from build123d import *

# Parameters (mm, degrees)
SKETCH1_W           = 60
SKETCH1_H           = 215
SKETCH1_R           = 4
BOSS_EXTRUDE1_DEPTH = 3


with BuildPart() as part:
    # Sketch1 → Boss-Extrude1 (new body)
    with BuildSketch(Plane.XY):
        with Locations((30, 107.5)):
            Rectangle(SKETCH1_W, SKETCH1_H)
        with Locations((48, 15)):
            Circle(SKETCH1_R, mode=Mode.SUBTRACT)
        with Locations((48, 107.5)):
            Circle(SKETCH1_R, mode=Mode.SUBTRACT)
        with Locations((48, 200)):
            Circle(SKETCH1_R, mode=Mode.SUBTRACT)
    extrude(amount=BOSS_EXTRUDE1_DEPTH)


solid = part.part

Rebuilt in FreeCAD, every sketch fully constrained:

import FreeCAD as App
import Part
import Sketcher

V = App.Vector

doc = App.newDocument("Part")
body = doc.addObject("PartDesign::Body", "Body")

sketch1 = body.newObject("Sketcher::SketchObject", "Sketch")
sketch1.AttachmentSupport = (doc.getObject("XY_Plane"), [""])
sketch1.MapMode = "FlatFace"
sketch1.addGeometry([
    Part.LineSegment(V(0, 215, 0), V(0, 0, 0)),
    Part.LineSegment(V(0, 0, 0), V(60, 0, 0)),
    Part.LineSegment(V(60, 0, 0), V(60, 215, 0)),
    Part.LineSegment(V(60, 215, 0), V(0, 215, 0)),
    Part.Circle(V(48, 15, 0), V(0, 0, 1), 4),
    Part.Circle(V(48, 107.5, 0), V(0, 0, 1), 4),
    Part.Circle(V(48, 200, 0), V(0, 0, 1), 4),
], False)
sketch1.addConstraint([
    Sketcher.Constraint("Coincident", 0, 2, 1, 1),
    Sketcher.Constraint("Coincident", 1, 2, 2, 1),
    Sketcher.Constraint("Coincident", 2, 2, 3, 1),
    Sketcher.Constraint("Coincident", 3, 2, 0, 1),
    Sketcher.Constraint("Vertical", 0),
    Sketcher.Constraint("Horizontal", 1),
    Sketcher.Constraint("Vertical", 2),
    Sketcher.Constraint("Horizontal", 3),
    Sketcher.Constraint("Coincident", 0, 2, -1, 1),
    Sketcher.Constraint("Equal", 4, 5),
    Sketcher.Constraint("Equal", 5, 6),
    Sketcher.Constraint("Vertical", 4, 3, 5, 3),
    Sketcher.Constraint("Vertical", 5, 3, 6, 3),
    Sketcher.Constraint("Diameter", 4, 8.0),
    Sketcher.Constraint("DistanceX", 1, 1, 1, 2, 60.0),
    Sketcher.Constraint("DistanceY", 0, 2, 0, 1, 215.0),
    Sketcher.Constraint("DistanceX", -1, 1, 4, 3, 48.0),
    Sketcher.Constraint("DistanceY", -1, 1, 4, 3, 15.0),
    Sketcher.Constraint("DistanceY", -1, 1, 6, 3, 200.0),
    Sketcher.Constraint("DistanceY", -1, 1, 5, 3, 107.5),
])
pad1 = body.newObject("PartDesign::Pad", "Pad")
pad1.Profile = sketch1
pad1.Length = 3

doc.recompute()
